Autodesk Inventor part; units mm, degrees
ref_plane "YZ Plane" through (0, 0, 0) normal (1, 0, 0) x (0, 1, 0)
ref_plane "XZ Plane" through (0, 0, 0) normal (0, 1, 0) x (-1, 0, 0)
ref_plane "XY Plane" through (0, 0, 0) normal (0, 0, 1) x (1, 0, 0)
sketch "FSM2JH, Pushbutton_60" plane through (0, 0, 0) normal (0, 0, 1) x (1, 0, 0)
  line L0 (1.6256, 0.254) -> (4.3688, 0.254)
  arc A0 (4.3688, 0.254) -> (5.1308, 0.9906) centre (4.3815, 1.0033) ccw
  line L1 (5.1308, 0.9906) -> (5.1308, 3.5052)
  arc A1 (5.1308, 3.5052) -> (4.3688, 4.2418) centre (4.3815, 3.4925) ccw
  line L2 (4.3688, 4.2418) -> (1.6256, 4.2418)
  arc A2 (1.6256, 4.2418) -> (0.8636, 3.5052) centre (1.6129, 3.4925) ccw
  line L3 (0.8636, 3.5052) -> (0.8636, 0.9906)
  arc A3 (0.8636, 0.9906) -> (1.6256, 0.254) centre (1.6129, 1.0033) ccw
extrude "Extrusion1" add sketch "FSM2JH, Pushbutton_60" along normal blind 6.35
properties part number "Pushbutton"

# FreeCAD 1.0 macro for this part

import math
import FreeCAD as App
import Part
import Sketcher

V = App.Vector
Q = App.Units.Quantity

doc = App.newDocument("Part")
body = doc.addObject("PartDesign::Body", "Body")

sketch1 = doc.addObject("Sketcher::SketchObject", "Sketch")
body.addObject(sketch1)
sketch1.AttachmentSupport = (doc.XY_Plane, [""])
sketch1.MapMode = "FlatFace"
sketch1.addGeometry(Part.ArcOfCircle(Part.Circle(V(1.6, 1, 0), V(0, 0, 1), 0.7), math.radians(-179), math.radians(-89)), False)
sketch1.addGeometry(Part.LineSegment(V(1.6, 0.3, 0), V(4.4, 0.3, 0)), False)
sketch1.addGeometry(Part.ArcOfCircle(Part.Circle(V(4.4, 1, 0), V(0, 0, 1), 0.7), math.radians(-91), math.radians(-1)), False)
sketch1.addGeometry(Part.LineSegment(V(5.1, 1, 0), V(5.1, 3.5, 0)), False)
sketch1.addGeometry(Part.ArcOfCircle(Part.Circle(V(4.4, 3.5, 0), V(0, 0, 1), 0.7), math.radians(1), math.radians(91)), False)
sketch1.addGeometry(Part.LineSegment(V(4.4, 4.2, 0), V(1.6, 4.2, 0)), False)
sketch1.addGeometry(Part.ArcOfCircle(Part.Circle(V(1.6, 3.5, 0), V(0, 0, 1), 0.7), math.radians(89), math.radians(179)), False)
sketch1.addGeometry(Part.LineSegment(V(0.9, 3.5, 0), V(0.9, 1, 0)), False)
sketch1.addConstraint(Sketcher.Constraint("Coincident", 0, 2, 1, 1))
sketch1.addConstraint(Sketcher.Constraint("Coincident", 1, 2, 2, 1))
sketch1.addConstraint(Sketcher.Constraint("Coincident", 2, 2, 3, 1))
sketch1.addConstraint(Sketcher.Constraint("Coincident", 3, 2, 4, 1))
sketch1.addConstraint(Sketcher.Constraint("Coincident", 4, 2, 5, 1))
sketch1.addConstraint(Sketcher.Constraint("Coincident", 5, 2, 6, 1))
sketch1.addConstraint(Sketcher.Constraint("Coincident", 6, 2, 7, 1))
sketch1.addConstraint(Sketcher.Constraint("Coincident", 7, 2, 0, 1))
sketch1.addConstraint(Sketcher.Constraint("Horizontal", 1))
sketch1.addConstraint(Sketcher.Constraint("Vertical", 3))
sketch1.addConstraint(Sketcher.Constraint("Horizontal", 5))
sketch1.addConstraint(Sketcher.Constraint("Vertical", 7))
sketch1.addConstraint(Sketcher.Constraint("Equal", 0, 2))
sketch1.addConstraint(Sketcher.Constraint("Equal", 2, 4))
sketch1.addConstraint(Sketcher.Constraint("Equal", 4, 6))
sketch1.addConstraint(Sketcher.Constraint("Horizontal", 0, 3, 2, 3))
sketch1.addConstraint(Sketcher.Constraint("Horizontal", 4, 3, 6, 3))
sketch1.addConstraint(Sketcher.Constraint("Horizontal", 3, 2, 6, 2))
sketch1.addConstraint(Sketcher.Constraint("Horizontal", 2, 2, 7, 2))
sketch1.addConstraint(Sketcher.Constraint("Vertical", 2, 3, 4, 3))
sketch1.addConstraint(Sketcher.Constraint("Vertical", 1, 2, 4, 2))
sketch1.addConstraint(Sketcher.Constraint("Radius", 0, Q("0.0295 in")))
sketch1.addConstraint(Sketcher.Constraint("DistanceX", 1, 1, 1, 2, Q("0.108 in")))
sketch1.addConstraint(Sketcher.Constraint("DistanceY", 3, 1, 3, 2, Q("0.099 in")))
sketch1.addConstraint(Sketcher.Constraint("DistanceY", -1, 1, 0, 2, Q("0.01 in")))
sketch1.addConstraint(Sketcher.Constraint("DistanceX", 1, 2, 2, 2, Q("0.03 in")))
sketch1.addConstraint(Sketcher.Constraint("DistanceX", -1, 1, 0, 2, Q("0.064 in")))
sketch1.addConstraint(Sketcher.Constraint("DistanceY", -1, 1, 2, 2, Q("0.039 in")))
pad1 = doc.addObject("PartDesign::Pad", "Pad")
body.addObject(pad1)
pad1.Profile = sketch1
pad1.Length = Q("0.25 in")

doc.recompute()
